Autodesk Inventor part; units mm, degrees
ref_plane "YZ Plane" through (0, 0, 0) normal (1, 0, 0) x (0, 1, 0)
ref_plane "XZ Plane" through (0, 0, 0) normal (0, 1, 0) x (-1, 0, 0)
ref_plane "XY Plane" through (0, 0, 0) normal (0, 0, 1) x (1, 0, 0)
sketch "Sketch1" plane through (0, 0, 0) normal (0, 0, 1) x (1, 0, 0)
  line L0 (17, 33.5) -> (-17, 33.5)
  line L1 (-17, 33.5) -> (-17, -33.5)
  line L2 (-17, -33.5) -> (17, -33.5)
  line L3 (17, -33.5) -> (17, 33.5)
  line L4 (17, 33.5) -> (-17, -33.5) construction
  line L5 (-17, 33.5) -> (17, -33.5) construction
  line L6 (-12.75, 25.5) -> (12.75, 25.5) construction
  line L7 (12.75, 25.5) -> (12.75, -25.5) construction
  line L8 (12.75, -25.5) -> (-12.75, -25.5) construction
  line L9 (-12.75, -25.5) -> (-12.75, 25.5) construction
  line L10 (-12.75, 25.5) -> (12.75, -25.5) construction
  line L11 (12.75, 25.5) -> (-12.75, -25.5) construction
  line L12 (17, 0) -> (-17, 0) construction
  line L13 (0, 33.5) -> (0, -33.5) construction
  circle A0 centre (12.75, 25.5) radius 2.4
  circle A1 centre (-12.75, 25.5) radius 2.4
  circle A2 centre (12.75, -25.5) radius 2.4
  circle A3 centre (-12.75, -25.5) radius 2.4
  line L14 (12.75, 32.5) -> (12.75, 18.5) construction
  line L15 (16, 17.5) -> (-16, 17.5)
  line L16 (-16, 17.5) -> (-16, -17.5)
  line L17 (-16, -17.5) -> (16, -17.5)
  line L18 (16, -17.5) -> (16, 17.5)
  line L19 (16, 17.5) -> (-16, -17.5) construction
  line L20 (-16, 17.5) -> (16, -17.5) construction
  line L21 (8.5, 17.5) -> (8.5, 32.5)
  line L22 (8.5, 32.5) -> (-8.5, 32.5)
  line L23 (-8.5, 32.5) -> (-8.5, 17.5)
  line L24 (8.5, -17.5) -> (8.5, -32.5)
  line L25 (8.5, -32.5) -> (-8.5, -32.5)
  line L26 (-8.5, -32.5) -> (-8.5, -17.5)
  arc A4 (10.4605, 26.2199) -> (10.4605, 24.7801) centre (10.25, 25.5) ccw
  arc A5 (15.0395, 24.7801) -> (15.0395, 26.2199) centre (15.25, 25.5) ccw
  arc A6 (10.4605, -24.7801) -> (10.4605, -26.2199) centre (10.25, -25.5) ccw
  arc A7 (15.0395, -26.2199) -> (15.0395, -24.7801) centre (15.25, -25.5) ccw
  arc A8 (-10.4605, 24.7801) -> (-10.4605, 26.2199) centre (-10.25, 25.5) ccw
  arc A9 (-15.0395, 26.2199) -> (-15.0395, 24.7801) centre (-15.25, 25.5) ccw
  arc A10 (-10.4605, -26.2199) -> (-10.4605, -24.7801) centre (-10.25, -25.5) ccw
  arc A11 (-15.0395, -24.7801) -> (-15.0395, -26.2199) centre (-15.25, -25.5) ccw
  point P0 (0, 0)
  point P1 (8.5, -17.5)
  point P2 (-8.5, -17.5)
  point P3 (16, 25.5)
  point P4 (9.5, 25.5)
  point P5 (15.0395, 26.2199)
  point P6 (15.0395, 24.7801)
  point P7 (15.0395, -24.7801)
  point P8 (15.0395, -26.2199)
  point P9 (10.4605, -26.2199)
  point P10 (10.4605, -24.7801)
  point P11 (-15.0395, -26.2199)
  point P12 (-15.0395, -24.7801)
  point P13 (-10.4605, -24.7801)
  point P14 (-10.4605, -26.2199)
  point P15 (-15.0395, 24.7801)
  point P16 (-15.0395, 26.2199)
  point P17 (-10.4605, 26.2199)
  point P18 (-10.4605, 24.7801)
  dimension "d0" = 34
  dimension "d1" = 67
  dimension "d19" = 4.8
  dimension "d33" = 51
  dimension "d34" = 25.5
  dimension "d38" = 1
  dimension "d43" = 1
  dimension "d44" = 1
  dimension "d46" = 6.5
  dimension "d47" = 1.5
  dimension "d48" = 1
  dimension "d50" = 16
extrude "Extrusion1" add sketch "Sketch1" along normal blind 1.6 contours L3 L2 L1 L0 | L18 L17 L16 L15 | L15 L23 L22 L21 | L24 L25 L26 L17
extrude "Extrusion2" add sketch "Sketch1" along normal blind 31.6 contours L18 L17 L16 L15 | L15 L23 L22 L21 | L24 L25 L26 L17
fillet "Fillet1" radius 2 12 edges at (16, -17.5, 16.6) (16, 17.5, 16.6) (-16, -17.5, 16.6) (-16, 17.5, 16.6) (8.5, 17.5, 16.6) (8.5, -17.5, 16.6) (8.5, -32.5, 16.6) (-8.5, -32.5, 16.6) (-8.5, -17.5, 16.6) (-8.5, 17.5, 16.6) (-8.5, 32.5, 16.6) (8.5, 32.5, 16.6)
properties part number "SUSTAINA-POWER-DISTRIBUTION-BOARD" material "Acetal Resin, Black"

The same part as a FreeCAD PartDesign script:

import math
import FreeCAD as App
import Part
import Sketcher
from FreeCAD import Vector


def edges_at(feature, points):
    """Names of the edges that pass closest to the given points."""
    edges = feature.Shape.Edges
    near = lambda p: min(range(len(edges)), key=lambda i: edges[i].distToShape(Part.Vertex(*p))[0])
    return sorted({f"Edge{near(p) + 1}" for p in points})


def add_polygon(sketch, points):
    """Adds a closed chain of lines whose ends are joined by coincident constraints."""
    first, n = sketch.GeometryCount, len(points)
    for a, b in zip(points, points[1:] + points[:1]):
        sketch.addGeometry(Part.LineSegment(App.Vector(*a, 0), App.Vector(*b, 0)), False)
    for i in range(n):
        sketch.addConstraint(Sketcher.Constraint("Coincident", first + i, 2, first + (i + 1) % n, 1))

doc = App.newDocument("Part")
body = doc.addObject("PartDesign::Body", "Body")

# Sketch on XY plane
sketch1 = doc.addObject("Sketcher::SketchObject", "Sketch")
body.addObject(sketch1)
sketch1.AttachmentSupport = (doc.XY_Plane, [""])
sketch1.MapMode = "FlatFace"
add_polygon(sketch1, [(17, -33.5), (17, 33.5), (-17, 33.5), (-17, -33.5)])  # lines 0-3
sketch1.addGeometry(Part.ArcOfCircle(Part.Circle(Vector(-12.75, -25.5, 0), Vector(0, 0, 1), 2.4), math.radians(17.454997), math.radians(162.545003)), False)  # 4
sketch1.addGeometry(Part.ArcOfCircle(Part.Circle(Vector(-10.25, -25.5, 0), Vector(0, 0, 1), 0.750044), math.radians(-106.299011), math.radians(106.299011)), False)  # 5
sketch1.addGeometry(Part.ArcOfCircle(Part.Circle(Vector(-12.75, -25.5, 0), Vector(0, 0, 1), 2.4), math.radians(-162.545003), math.radians(-17.454997)), False)  # 6
sketch1.addGeometry(Part.ArcOfCircle(Part.Circle(Vector(-15.25, -25.5, 0), Vector(0, 0, 1), 0.750044), math.radians(73.700989), math.radians(286.299011)), False)  # 7
sketch1.addGeometry(Part.ArcOfCircle(Part.Circle(Vector(12.75, -25.5, 0), Vector(0, 0, 1), 2.4), math.radians(17.454997), math.radians(162.545003)), False)  # 8
sketch1.addGeometry(Part.ArcOfCircle(Part.Circle(Vector(15.25, -25.5, 0), Vector(0, 0, 1), 0.750044), math.radians(-106.299011), math.radians(106.299011)), False)  # 9
sketch1.addGeometry(Part.ArcOfCircle(Part.Circle(Vector(12.75, -25.5, 0), Vector(0, 0, 1), 2.4), math.radians(-162.545003), math.radians(-17.454997)), False)  # 10
sketch1.addGeometry(Part.ArcOfCircle(Part.Circle(Vector(10.25, -25.5, 0), Vector(0, 0, 1), 0.750044), math.radians(73.700989), math.radians(286.299011)), False)  # 11
sketch1.addGeometry(Part.ArcOfCircle(Part.Circle(Vector(-12.75, 25.5, 0), Vector(0, 0, 1), 2.4), math.radians(17.454997), math.radians(162.545003)), False)  # 12
sketch1.addGeometry(Part.ArcOfCircle(Part.Circle(Vector(-10.25, 25.5, 0), Vector(0, 0, 1), 0.750044), math.radians(-106.299011), math.radians(106.299011)), False)  # 13
sketch1.addGeometry(Part.ArcOfCircle(Part.Circle(Vector(-12.75, 25.5, 0), Vector(0, 0, 1), 2.4), math.radians(-162.545003), math.radians(-17.454997)), False)  # 14
sketch1.addGeometry(Part.ArcOfCircle(Part.Circle(Vector(-15.25, 25.5, 0), Vector(0, 0, 1), 0.750044), math.radians(73.700989), math.radians(286.299011)), False)  # 15
sketch1.addGeometry(Part.ArcOfCircle(Part.Circle(Vector(12.75, 25.5, 0), Vector(0, 0, 1), 2.4), math.radians(17.454997), math.radians(162.545003)), False)  # 16
sketch1.addGeometry(Part.ArcOfCircle(Part.Circle(Vector(15.25, 25.5, 0), Vector(0, 0, 1), 0.750044), math.radians(-106.299011), math.radians(106.299011)), False)  # 17
sketch1.addGeometry(Part.ArcOfCircle(Part.Circle(Vector(12.75, 25.5, 0), Vector(0, 0, 1), 2.4), math.radians(-162.545003), math.radians(-17.454997)), False)  # 18
sketch1.addGeometry(Part.ArcOfCircle(Part.Circle(Vector(10.25, 25.5, 0), Vector(0, 0, 1), 0.750044), math.radians(73.700989), math.radians(286.299011)), False)  # 19
sketch1.addConstraint([
    Sketcher.Constraint("Coincident", 4, 1, 5, 2),
    Sketcher.Constraint("Coincident", 5, 1, 6, 2),
    Sketcher.Constraint("Coincident", 6, 1, 7, 2),
    Sketcher.Constraint("Coincident", 7, 1, 4, 2),
    Sketcher.Constraint("Coincident", 8, 1, 9, 2),
    Sketcher.Constraint("Coincident", 9, 1, 10, 2),
    Sketcher.Constraint("Coincident", 10, 1, 11, 2),
    Sketcher.Constraint("Coincident", 11, 1, 8, 2),
    Sketcher.Constraint("Coincident", 12, 1, 13, 2),
    Sketcher.Constraint("Coincident", 13, 1, 14, 2),
    Sketcher.Constraint("Coincident", 14, 1, 15, 2),
    Sketcher.Constraint("Coincident", 15, 1, 12, 2),
    Sketcher.Constraint("Coincident", 16, 1, 17, 2),
    Sketcher.Constraint("Coincident", 17, 1, 18, 2),
    Sketcher.Constraint("Coincident", 18, 1, 19, 2),
    Sketcher.Constraint("Coincident", 19, 1, 16, 2),
    Sketcher.Constraint("Vertical", 0),
    Sketcher.Constraint("Horizontal", 1),
    Sketcher.Constraint("Vertical", 2),
    Sketcher.Constraint("Horizontal", 3),
    Sketcher.Constraint("Coincident", 6, 3, 4, 3),
    Sketcher.Constraint("Coincident", 10, 3, 8, 3),
    Sketcher.Constraint("Coincident", 14, 3, 12, 3),
    Sketcher.Constraint("Coincident", 18, 3, 16, 3),
    Sketcher.Constraint("Equal", 4, 6),
    Sketcher.Constraint("Equal", 5, 7),
    Sketcher.Constraint("Equal", 6, 8),
    Sketcher.Constraint("Equal", 7, 9),
    Sketcher.Constraint("Equal", 8, 10),
    Sketcher.Constraint("Equal", 9, 11),
    Sketcher.Constraint("Equal", 10, 12),
    Sketcher.Constraint("Equal", 11, 13),
    Sketcher.Constraint("Equal", 12, 14),
    Sketcher.Constraint("Equal", 13, 15),
    Sketcher.Constraint("Equal", 14, 16),
    Sketcher.Constraint("Equal", 15, 17),
    Sketcher.Constraint("Equal", 16, 18),
    Sketcher.Constraint("Equal", 17, 19),
    Sketcher.Constraint("Symmetric", 8, 3, 12, 3, -1, 1),
    Sketcher.Constraint("Symmetric", 11, 3, 13, 3, -1, 1),
    Sketcher.Constraint("Symmetric", 9, 3, 15, 3, -1, 1),
    Sketcher.Constraint("Symmetric", 4, 3, 16, 3, -1, 1),
    Sketcher.Constraint("Symmetric", 7, 3, 17, 3, -1, 1),
    Sketcher.Constraint("Symmetric", 5, 3, 19, 3, -1, 1),
    Sketcher.Constraint("Symmetric", 0, 2, 2, 2, -1, 1),
    Sketcher.Constraint("Symmetric", 4, 3, 8, 3, -2),
    Sketcher.Constraint("Symmetric", 7, 3, 9, 3, -2),
    Sketcher.Constraint("Symmetric", 5, 3, 11, 3, -2),
    Sketcher.Constraint("Horizontal", 4, 3, 5, 3),
    Sketcher.Constraint("Horizontal", 6, 3, 7, 3),
    Sketcher.Constraint("Horizontal", 5, 1, 6, 1),
    Sketcher.Constraint("Radius", 4, 2.4),
    Sketcher.Constraint("DistanceX", 1, 2, 1, 1, 34.0),
    Sketcher.Constraint("DistanceY", 0, 1, 0, 2, 67.0),
    Sketcher.Constraint("Radius", 5, 0.75),
    Sketcher.Constraint("DistanceY", 4, 3, 12, 3, 51.0),
    Sketcher.Constraint("DistanceX", 4, 3, 8, 3, 25.5),
    Sketcher.Constraint("DistanceX", 7, 3, 5, 3, 5.0),
])
pad1 = doc.addObject("PartDesign::Pad", "Pad")
body.addObject(pad1)
pad1.Profile = sketch1
pad1.Length = 1.6

# Sketch on XY plane
sketch2 = doc.addObject("Sketcher::SketchObject", "Sketch001")
body.addObject(sketch2)
sketch2.AttachmentSupport = (doc.XY_Plane, [""])
sketch2.MapMode = "FlatFace"
add_polygon(sketch2, [(16, -17.5), (16, 17.5), (8.5, 17.5), (8.5, 32.5), (-8.5, 32.5), (-8.5, 17.5), (-16, 17.5), (-16, -17.5), (-8.5, -17.5), (-8.5, -32.5), (8.5, -32.5), (8.5, -17.5)])  # lines 0-11
sketch2.addConstraint([
    Sketcher.Constraint("Vertical", 0),
    Sketcher.Constraint("Horizontal", 1),
    Sketcher.Constraint("Vertical", 2),
    Sketcher.Constraint("Horizontal", 3),
    Sketcher.Constraint("Vertical", 4),
    Sketcher.Constraint("Horizontal", 5),
    Sketcher.Constraint("Vertical", 6),
    Sketcher.Constraint("Horizontal", 7),
    Sketcher.Constraint("Vertical", 8),
    Sketcher.Constraint("Horizontal", 9),
    Sketcher.Constraint("Vertical", 10),
    Sketcher.Constraint("Horizontal", 11),
    Sketcher.Constraint("Symmetric", 0, 2, 6, 2, -1, 1),
    Sketcher.Constraint("Symmetric", 2, 2, 8, 2, -1, 1),
    Sketcher.Constraint("Symmetric", 4, 2, 10, 2, -1, 1),
    Sketcher.Constraint("Symmetric", 1, 2, 4, 2, -2),
    Sketcher.Constraint("DistanceX", -1, 1, 0, 2, 16.0),
    Sketcher.Constraint("DistanceX", 3, 2, 3, 1, 17.0),
    Sketcher.Constraint("DistanceY", 0, 1, 0, 2, 35.0),
    Sketcher.Constraint("DistanceY", 2, 1, 2, 2, 15.0),
])
pad2 = doc.addObject("PartDesign::Pad", "Pad001")
body.addObject(pad2)
pad2.Profile = sketch2
pad2.Length = 31.6
doc.recompute()

fillet = doc.addObject("PartDesign::Fillet", "Fillet")
body.addObject(fillet)
fillet.Base = (pad2, edges_at(pad2, [
    (16, -17.5, 16.6),
    (16, 17.5, 16.6),
    (-16, -17.5, 16.6),
    (-16, 17.5, 16.6),
    (8.5, 17.5, 16.6),
    (8.5, -17.5, 16.6),
    (8.5, -32.5, 16.6),
    (-8.5, -32.5, 16.6),
    (-8.5, -17.5, 16.6),
    (-8.5, 17.5, 16.6),
    (-8.5, 32.5, 16.6),
    (8.5, 32.5, 16.6),
]))
fillet.Radius = 2

doc.recompute()
